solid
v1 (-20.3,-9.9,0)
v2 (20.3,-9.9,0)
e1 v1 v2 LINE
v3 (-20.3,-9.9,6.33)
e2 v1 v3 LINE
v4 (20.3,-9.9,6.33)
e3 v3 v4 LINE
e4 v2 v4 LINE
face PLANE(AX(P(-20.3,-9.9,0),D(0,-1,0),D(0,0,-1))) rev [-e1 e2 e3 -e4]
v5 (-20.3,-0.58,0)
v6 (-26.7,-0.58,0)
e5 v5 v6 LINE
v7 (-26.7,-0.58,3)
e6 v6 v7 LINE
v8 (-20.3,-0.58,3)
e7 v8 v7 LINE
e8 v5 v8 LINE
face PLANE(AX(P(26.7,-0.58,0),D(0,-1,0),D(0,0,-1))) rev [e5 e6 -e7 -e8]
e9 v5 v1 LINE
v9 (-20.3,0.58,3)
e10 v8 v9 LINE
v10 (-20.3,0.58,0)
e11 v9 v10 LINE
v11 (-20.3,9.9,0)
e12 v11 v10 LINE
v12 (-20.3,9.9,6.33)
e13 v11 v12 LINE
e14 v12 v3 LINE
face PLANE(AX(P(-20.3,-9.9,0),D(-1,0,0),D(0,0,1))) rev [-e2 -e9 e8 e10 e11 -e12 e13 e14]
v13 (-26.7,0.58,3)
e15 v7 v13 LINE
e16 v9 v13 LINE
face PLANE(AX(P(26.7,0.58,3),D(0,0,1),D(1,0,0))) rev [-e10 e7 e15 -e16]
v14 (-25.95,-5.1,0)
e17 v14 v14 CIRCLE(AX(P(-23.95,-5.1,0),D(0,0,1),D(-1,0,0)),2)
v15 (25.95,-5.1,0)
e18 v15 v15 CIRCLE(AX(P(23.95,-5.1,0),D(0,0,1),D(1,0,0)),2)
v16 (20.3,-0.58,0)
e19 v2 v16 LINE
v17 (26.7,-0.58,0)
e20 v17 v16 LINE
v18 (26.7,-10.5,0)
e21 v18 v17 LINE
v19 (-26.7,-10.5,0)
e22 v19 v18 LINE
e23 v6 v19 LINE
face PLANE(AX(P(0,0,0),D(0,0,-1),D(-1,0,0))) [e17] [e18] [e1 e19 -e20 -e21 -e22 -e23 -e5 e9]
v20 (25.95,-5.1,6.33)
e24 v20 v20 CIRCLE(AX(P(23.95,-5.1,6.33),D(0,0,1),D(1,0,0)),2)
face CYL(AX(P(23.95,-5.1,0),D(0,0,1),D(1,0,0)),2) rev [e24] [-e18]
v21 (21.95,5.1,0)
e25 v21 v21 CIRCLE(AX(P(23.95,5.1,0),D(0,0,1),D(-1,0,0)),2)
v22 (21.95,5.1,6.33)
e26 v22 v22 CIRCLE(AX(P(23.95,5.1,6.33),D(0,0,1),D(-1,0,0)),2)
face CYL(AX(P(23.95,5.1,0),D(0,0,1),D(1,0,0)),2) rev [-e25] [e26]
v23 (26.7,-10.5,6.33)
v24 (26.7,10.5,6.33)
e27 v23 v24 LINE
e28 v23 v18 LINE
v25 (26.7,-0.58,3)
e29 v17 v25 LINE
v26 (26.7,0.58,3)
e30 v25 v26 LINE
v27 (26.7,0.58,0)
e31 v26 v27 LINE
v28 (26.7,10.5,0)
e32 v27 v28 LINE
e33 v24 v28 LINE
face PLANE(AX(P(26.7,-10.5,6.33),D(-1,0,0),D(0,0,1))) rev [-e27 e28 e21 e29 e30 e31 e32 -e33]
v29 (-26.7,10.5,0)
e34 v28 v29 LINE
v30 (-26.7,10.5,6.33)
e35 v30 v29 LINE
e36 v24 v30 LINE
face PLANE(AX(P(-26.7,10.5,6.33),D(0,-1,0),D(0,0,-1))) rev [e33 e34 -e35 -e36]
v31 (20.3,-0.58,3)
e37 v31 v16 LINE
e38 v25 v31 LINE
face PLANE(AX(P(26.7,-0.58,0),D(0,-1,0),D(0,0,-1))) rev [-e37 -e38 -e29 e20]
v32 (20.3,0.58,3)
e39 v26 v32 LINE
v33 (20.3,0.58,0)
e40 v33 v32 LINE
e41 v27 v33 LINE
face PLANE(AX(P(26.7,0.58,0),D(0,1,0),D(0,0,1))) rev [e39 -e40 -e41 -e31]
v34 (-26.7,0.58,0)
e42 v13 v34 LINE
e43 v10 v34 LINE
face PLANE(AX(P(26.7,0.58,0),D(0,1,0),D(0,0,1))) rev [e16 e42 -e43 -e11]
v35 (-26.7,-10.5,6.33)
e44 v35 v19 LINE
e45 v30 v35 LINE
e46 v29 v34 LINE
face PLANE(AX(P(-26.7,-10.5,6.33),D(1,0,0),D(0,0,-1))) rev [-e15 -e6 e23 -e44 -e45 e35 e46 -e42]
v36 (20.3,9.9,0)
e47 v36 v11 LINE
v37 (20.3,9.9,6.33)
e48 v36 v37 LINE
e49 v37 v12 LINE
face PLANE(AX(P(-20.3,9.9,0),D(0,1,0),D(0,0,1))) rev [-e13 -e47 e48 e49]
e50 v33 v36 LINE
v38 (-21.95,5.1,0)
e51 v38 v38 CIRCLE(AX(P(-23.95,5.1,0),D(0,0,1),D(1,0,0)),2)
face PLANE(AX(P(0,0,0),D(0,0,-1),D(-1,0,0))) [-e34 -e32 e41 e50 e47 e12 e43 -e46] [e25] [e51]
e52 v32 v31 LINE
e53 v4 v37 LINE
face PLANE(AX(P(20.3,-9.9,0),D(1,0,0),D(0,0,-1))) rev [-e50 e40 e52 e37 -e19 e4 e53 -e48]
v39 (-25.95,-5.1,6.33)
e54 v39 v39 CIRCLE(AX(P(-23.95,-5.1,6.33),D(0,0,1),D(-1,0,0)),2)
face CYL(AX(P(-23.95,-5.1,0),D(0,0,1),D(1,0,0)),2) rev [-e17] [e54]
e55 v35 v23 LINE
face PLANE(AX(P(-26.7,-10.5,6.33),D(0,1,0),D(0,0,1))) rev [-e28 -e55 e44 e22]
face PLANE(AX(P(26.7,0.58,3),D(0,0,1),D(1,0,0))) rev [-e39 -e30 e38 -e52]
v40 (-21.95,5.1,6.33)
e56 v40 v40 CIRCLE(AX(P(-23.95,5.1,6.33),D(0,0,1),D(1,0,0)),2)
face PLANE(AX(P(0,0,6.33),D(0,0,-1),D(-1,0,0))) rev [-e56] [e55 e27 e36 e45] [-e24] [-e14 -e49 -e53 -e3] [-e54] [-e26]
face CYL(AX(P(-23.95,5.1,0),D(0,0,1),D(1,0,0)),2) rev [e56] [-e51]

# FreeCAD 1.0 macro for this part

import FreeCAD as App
import Part
import Sketcher

V = App.Vector

doc = App.newDocument("Part")
params = doc.addObject("Spreadsheet::Sheet", "Params")
for row, (alias, value) in enumerate([
    ("sketch1_height", "21 mm"),
    ("sketch1_width", "53.4 mm"),
    ("pad1_length", "6.33 mm"),
    ("sketch2_width", "40.6 mm"),
    ("sketch2_height", "19.8 mm"),
    ("sketch3_height", "3 mm"),
    ("sketch3_width", "1.16 mm"),
    ("sketch4_diameter", "4 mm"),
    ("pocket3_length", "6.33 mm"),
], start=1):
    params.set(f"A{row}", alias)
    params.set(f"B{row}", "=" + value)
    params.setAlias(f"B{row}", alias)

body = doc.addObject("PartDesign::Body", "Body")

# Sketch on XY plane
sketch1 = doc.addObject("Sketcher::SketchObject", "Sketch")
body.addObject(sketch1)
sketch1.AttachmentSupport = (doc.XY_Plane, [""])
sketch1.MapMode = "FlatFace"
sketch1.addGeometry([
    Part.LineSegment(V(-27, 10, 0), V(-27, -10, 0)),
    Part.LineSegment(V(-27, -10, 0), V(27, -10, 0)),
    Part.LineSegment(V(27, -10, 0), V(27, 10, 0)),
    Part.LineSegment(V(27, 10, 0), V(-27, 10, 0)),
], False)
sketch1.addConstraint([
    Sketcher.Constraint("Coincident", 0, 2, 1, 1),
    Sketcher.Constraint("Coincident", 1, 2, 2, 1),
    Sketcher.Constraint("Coincident", 2, 2, 3, 1),
    Sketcher.Constraint("Coincident", 3, 2, 0, 1),
    Sketcher.Constraint("Vertical", 0),
    Sketcher.Constraint("Horizontal", 1),
    Sketcher.Constraint("Vertical", 2),
    Sketcher.Constraint("Horizontal", 3),
    Sketcher.Constraint("Symmetric", 0, 2, 2, 2, -1, 1),
    Sketcher.Constraint("DistanceY", 0, 2, 0, 1, 21.0),
    Sketcher.Constraint("DistanceX", 1, 1, 1, 2, 53.4),
])
sketch1.setExpression("Constraints[9]", "Params.sketch1_height")
sketch1.setExpression("Constraints[10]", "Params.sketch1_width")
pad1 = doc.addObject("PartDesign::Pad", "Pad")
body.addObject(pad1)
pad1.Profile = sketch1
pad1.setExpression("Length", "Params.pad1_length")

# Sketch on XY plane
sketch2 = doc.addObject("Sketcher::SketchObject", "Sketch001")
body.addObject(sketch2)
sketch2.AttachmentSupport = (doc.XY_Plane, [""])
sketch2.MapMode = "FlatFace"
sketch2.AttachmentOffset = App.Placement(V(0, 0, 6.33), App.Rotation())
sketch2.addGeometry([
    Part.LineSegment(V(-20, 10, 0), V(-20, -10, 0)),
    Part.LineSegment(V(-20, -10, 0), V(20, -10, 0)),
    Part.LineSegment(V(20, -10, 0), V(20, 10, 0)),
    Part.LineSegment(V(20, 10, 0), V(-20, 10, 0)),
], False)
sketch2.addConstraint([
    Sketcher.Constraint("Coincident", 0, 2, 1, 1),
    Sketcher.Constraint("Coincident", 1, 2, 2, 1),
    Sketcher.Constraint("Coincident", 2, 2, 3, 1),
    Sketcher.Constraint("Coincident", 3, 2, 0, 1),
    Sketcher.Constraint("Vertical", 0),
    Sketcher.Constraint("Horizontal", 1),
    Sketcher.Constraint("Vertical", 2),
    Sketcher.Constraint("Horizontal", 3),
    Sketcher.Constraint("Symmetric", 0, 2, 2, 2, -1, 1),
    Sketcher.Constraint("DistanceX", 1, 1, 1, 2, 40.6),
    Sketcher.Constraint("DistanceY", 0, 2, 0, 1, 19.8),
])
sketch2.setExpression("Constraints[9]", "Params.sketch2_width")
sketch2.setExpression("Constraints[10]", "Params.sketch2_height")
pocket1 = doc.addObject("PartDesign::Pocket", "Pocket")
body.addObject(pocket1)
pocket1.Profile = sketch2
pocket1.Type = "ThroughAll"

# Sketch on YZ plane
sketch3 = doc.addObject("Sketcher::SketchObject", "Sketch002")
body.addObject(sketch3)
sketch3.AttachmentSupport = (doc.YZ_Plane, [""])
sketch3.MapMode = "FlatFace"
sketch3.AttachmentOffset = App.Placement(V(0, 0, -26.7), App.Rotation())
sketch3.addGeometry([
    Part.LineSegment(V(0.6, 0, 0), V(-0.6, 0, 0)),
    Part.LineSegment(V(-0.6, 0, 0), V(-0.6, 3, 0)),
    Part.LineSegment(V(-0.6, 3, 0), V(0.6, 3, 0)),
    Part.LineSegment(V(0.6, 3, 0), V(0.6, 0, 0)),
], False)
sketch3.addConstraint([
    Sketcher.Constraint("Coincident", 0, 2, 1, 1),
    Sketcher.Constraint("Coincident", 1, 2, 2, 1),
    Sketcher.Constraint("Coincident", 2, 2, 3, 1),
    Sketcher.Constraint("Coincident", 3, 2, 0, 1),
    Sketcher.Constraint("Horizontal", 0),
    Sketcher.Constraint("Vertical", 1),
    Sketcher.Constraint("Horizontal", 2),
    Sketcher.Constraint("Vertical", 3),
    Sketcher.Constraint("Symmetric", 0, 2, 3, 2, -1, 1),
    Sketcher.Constraint("DistanceY", 1, 1, 1, 2, 3.0),
    Sketcher.Constraint("DistanceX", 0, 2, 0, 1, 1.16),
])
sketch3.setExpression("Constraints[9]", "Params.sketch3_height")
sketch3.setExpression("Constraints[10]", "Params.sketch3_width")
pocket2 = doc.addObject("PartDesign::Pocket", "Pocket001")
body.addObject(pocket2)
pocket2.Profile = sketch3
pocket2.Type = "ThroughAll"
pocket2.Reversed = True

# Sketch on XY plane
sketch4 = doc.addObject("Sketcher::SketchObject", "Sketch003")
body.addObject(sketch4)
sketch4.AttachmentSupport = (doc.XY_Plane, [""])
sketch4.MapMode = "FlatFace"
sketch4.AttachmentOffset = App.Placement(V(0, 0, 6.33), App.Rotation())
sketch4.addGeometry([
    Part.Circle(V(-23.9, 5.1, 0), V(0, 0, 1), 2),
    Part.Circle(V(-23.9, -5.1, 0), V(0, 0, 1), 2),
    Part.Circle(V(23.9, -5.1, 0), V(0, 0, 1), 2),
    Part.Circle(V(23.9, 5.1, 0), V(0, 0, 1), 2),
], False)
sketch4.addConstraint([
    Sketcher.Constraint("Equal", 0, 1),
    Sketcher.Constraint("Equal", 1, 2),
    Sketcher.Constraint("Equal", 2, 3),
    Sketcher.Constraint("Symmetric", 0, 3, 2, 3, -1, 1),
    Sketcher.Constraint("Symmetric", 1, 3, 3, 3, -1, 1),
    Sketcher.Constraint("Symmetric", 1, 3, 2, 3, -2),
    Sketcher.Constraint("Diameter", 0, 4.0),
    Sketcher.Constraint("DistanceY", -1, 1, 0, 3, 5.1),
    Sketcher.Constraint("DistanceX", 1, 3, 2, 3, 47.9),
])
sketch4.setExpression("Constraints[6]", "Params.sketch4_diameter")
pocket3 = doc.addObject("PartDesign::Pocket", "Pocket002")
body.addObject(pocket3)
pocket3.Profile = sketch4
pocket3.setExpression("Length", "Params.pocket3_length")

doc.recompute()
